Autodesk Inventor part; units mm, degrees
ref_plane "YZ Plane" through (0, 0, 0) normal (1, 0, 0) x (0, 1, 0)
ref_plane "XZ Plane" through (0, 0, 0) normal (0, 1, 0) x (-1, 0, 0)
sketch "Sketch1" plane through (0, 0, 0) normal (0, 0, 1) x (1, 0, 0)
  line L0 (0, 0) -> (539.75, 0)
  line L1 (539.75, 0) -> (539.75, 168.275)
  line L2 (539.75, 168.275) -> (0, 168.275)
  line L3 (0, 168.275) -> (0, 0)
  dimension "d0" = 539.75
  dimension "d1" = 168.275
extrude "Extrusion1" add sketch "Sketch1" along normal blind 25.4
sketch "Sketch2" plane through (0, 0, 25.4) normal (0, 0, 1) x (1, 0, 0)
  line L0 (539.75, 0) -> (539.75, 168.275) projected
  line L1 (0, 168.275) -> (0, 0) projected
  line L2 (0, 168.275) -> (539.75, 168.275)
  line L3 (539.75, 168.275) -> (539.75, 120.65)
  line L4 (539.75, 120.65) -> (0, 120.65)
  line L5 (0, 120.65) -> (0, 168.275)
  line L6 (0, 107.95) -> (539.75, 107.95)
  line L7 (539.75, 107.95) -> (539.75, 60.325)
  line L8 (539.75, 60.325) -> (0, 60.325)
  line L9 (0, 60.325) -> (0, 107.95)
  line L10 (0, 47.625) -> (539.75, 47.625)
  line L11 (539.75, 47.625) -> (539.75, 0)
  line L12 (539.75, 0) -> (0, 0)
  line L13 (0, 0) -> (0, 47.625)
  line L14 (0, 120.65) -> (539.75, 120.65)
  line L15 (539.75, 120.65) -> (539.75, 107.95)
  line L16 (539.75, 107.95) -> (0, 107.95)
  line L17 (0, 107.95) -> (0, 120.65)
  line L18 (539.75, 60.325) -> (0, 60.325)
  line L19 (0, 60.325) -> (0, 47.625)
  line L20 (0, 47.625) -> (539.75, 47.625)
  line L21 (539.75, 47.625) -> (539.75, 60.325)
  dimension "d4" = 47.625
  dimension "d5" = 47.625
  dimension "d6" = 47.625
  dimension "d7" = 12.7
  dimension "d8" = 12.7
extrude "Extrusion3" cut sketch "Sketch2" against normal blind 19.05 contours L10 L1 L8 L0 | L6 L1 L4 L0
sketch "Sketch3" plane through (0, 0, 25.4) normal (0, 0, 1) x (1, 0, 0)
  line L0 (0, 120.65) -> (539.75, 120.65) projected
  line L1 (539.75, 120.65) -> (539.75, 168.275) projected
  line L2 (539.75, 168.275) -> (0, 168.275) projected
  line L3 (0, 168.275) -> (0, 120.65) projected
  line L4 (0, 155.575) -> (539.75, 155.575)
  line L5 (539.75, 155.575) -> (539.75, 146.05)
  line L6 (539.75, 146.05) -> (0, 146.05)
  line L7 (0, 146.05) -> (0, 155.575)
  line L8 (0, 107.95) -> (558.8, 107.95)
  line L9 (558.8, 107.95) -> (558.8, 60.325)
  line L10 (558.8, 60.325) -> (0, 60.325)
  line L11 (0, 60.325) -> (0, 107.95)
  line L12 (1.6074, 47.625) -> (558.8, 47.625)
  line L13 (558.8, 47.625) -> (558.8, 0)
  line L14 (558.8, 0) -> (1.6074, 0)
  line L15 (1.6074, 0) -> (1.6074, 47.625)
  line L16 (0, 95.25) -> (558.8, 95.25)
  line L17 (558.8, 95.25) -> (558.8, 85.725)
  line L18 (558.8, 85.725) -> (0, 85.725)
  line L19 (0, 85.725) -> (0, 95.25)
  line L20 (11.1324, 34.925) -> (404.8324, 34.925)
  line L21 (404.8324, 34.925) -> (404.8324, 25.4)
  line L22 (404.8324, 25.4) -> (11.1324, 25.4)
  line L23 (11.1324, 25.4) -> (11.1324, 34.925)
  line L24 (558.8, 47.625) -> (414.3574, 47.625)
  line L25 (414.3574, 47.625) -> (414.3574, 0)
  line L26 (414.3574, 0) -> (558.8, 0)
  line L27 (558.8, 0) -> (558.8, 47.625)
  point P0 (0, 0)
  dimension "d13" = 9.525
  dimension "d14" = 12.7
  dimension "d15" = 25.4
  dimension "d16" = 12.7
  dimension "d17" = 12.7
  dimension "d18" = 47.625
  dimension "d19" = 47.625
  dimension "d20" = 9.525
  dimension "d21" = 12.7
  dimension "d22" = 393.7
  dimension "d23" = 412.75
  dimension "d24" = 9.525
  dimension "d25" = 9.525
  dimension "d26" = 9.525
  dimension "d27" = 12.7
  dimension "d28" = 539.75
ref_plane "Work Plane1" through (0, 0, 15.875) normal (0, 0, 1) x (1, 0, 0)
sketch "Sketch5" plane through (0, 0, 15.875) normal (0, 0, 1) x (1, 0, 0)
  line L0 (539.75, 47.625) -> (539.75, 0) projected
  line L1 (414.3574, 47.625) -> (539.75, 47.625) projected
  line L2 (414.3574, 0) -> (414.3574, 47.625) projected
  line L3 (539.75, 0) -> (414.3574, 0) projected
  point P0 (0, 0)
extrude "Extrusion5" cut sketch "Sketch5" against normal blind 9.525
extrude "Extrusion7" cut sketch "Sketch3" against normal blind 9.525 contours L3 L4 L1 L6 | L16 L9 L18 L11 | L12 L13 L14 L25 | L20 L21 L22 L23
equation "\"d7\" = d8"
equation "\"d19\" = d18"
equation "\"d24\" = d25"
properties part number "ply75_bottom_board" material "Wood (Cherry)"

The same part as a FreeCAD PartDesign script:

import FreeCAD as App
import Part
import Sketcher
from FreeCAD import Vector
Q = App.Units.Quantity

doc = App.newDocument("Part")
body = doc.addObject("PartDesign::Body", "Body")

# Sketch on XY plane
sketch1 = doc.addObject("Sketcher::SketchObject", "Sketch")
body.addObject(sketch1)
sketch1.AttachmentSupport = (doc.XY_Plane, [""])
sketch1.MapMode = "FlatFace"
sketch1.addGeometry([
    Part.LineSegment(Vector(0, 168, 0), Vector(0, 0, 0)),
    Part.LineSegment(Vector(0, 0, 0), Vector(540, 0, 0)),
    Part.LineSegment(Vector(540, 0, 0), Vector(540, 168, 0)),
    Part.LineSegment(Vector(540, 168, 0), Vector(0, 168, 0)),
], False)
sketch1.addConstraint([
    Sketcher.Constraint("Coincident", 0, 2, 1, 1),
    Sketcher.Constraint("Coincident", 1, 2, 2, 1),
    Sketcher.Constraint("Coincident", 2, 2, 3, 1),
    Sketcher.Constraint("Coincident", 3, 2, 0, 1),
    Sketcher.Constraint("Vertical", 0),
    Sketcher.Constraint("Horizontal", 1),
    Sketcher.Constraint("Vertical", 2),
    Sketcher.Constraint("Horizontal", 3),
    Sketcher.Constraint("Coincident", 0, 2, -1, 1),
    Sketcher.Constraint("DistanceX", 1, 1, 1, 2, Q("21.25 in")),
    Sketcher.Constraint("DistanceY", 0, 2, 0, 1, Q("6.625 in")),
])
pad1 = doc.addObject("PartDesign::Pad", "Pad")
body.addObject(pad1)
pad1.Profile = sketch1
pad1.Length = Q("1 in")

# Sketch on XY plane
sketch2 = doc.addObject("Sketcher::SketchObject", "Sketch001")
body.addObject(sketch2)
sketch2.AttachmentSupport = (doc.XY_Plane, [""])
sketch2.MapMode = "FlatFace"
sketch2.AttachmentOffset = App.Placement(Vector(0, 0, 1 * 25.4), App.Rotation())
sketch2.addGeometry([
    Part.LineSegment(Vector(0, 48, 0), Vector(540, 48, 0)),  # 0
    Part.LineSegment(Vector(540, 48, 0), Vector(540, 60, 0)),  # 1
    Part.LineSegment(Vector(540, 60, 0), Vector(0, 60, 0)),  # 2
    Part.LineSegment(Vector(0, 60, 0), Vector(0, 48, 0)),  # 3
    Part.LineSegment(Vector(0, 108, 0), Vector(540, 108, 0)),  # 4
    Part.LineSegment(Vector(540, 108, 0), Vector(540, 121, 0)),  # 5
    Part.LineSegment(Vector(540, 121, 0), Vector(0, 121, 0)),  # 6
    Part.LineSegment(Vector(0, 121, 0), Vector(0, 108, 0)),  # 7
], False)
sketch2.addConstraint([
    Sketcher.Constraint("Coincident", 0, 2, 1, 1),
    Sketcher.Constraint("Coincident", 1, 2, 2, 1),
    Sketcher.Constraint("Coincident", 2, 2, 3, 1),
    Sketcher.Constraint("Coincident", 3, 2, 0, 1),
    Sketcher.Constraint("Coincident", 4, 2, 5, 1),
    Sketcher.Constraint("Coincident", 5, 2, 6, 1),
    Sketcher.Constraint("Coincident", 6, 2, 7, 1),
    Sketcher.Constraint("Coincident", 7, 2, 4, 1),
    Sketcher.Constraint("Horizontal", 0),
    Sketcher.Constraint("Vertical", 1),
    Sketcher.Constraint("Horizontal", 2),
    Sketcher.Constraint("Vertical", 3),
    Sketcher.Constraint("Horizontal", 4),
    Sketcher.Constraint("Vertical", 5),
    Sketcher.Constraint("Horizontal", 6),
    Sketcher.Constraint("Vertical", 7),
    Sketcher.Constraint("PointOnObject", 2, 2, -2),
    Sketcher.Constraint("PointOnObject", 6, 2, -2),
    Sketcher.Constraint("Vertical", 1, 2, 4, 2),
    Sketcher.Constraint("Equal", 3, 5),
    Sketcher.Constraint("DistanceY", 1, 1, 1, 2, Q("0.5 in")),
    Sketcher.Constraint("DistanceY", -1, 1, 0, 2, Q("1.875 in")),
    Sketcher.Constraint("DistanceY", 1, 2, 4, 2, Q("1.875 in")),
    Sketcher.Constraint("DistanceX", 0, 1, 0, 2, Q("21.25 in")),
])
pocket1 = doc.addObject("PartDesign::Pocket", "Pocket")
body.addObject(pocket1)
pocket1.Profile = sketch2
pocket1.Length = Q("0.75 in")

# Sketch on XY plane
sketch3 = doc.addObject("Sketcher::SketchObject", "Sketch002")
body.addObject(sketch3)
sketch3.AttachmentSupport = (doc.XY_Plane, [""])
sketch3.MapMode = "FlatFace"
sketch3.AttachmentOffset = App.Placement(Vector(0, 0, 0.625 * 25.4), App.Rotation())
sketch3.addGeometry([
    Part.LineSegment(Vector(540, 0, 0), Vector(540, 48, 0)),
    Part.LineSegment(Vector(540, 48, 0), Vector(414, 48, 0)),
    Part.LineSegment(Vector(414, 48, 0), Vector(414, 0, 0)),
    Part.LineSegment(Vector(414, 0, 0), Vector(540, 0, 0)),
], False)
sketch3.addConstraint([
    Sketcher.Constraint("Coincident", 0, 2, 1, 1),
    Sketcher.Constraint("Coincident", 1, 2, 2, 1),
    Sketcher.Constraint("Coincident", 2, 2, 3, 1),
    Sketcher.Constraint("Coincident", 3, 2, 0, 1),
    Sketcher.Constraint("Vertical", 0),
    Sketcher.Constraint("Horizontal", 1),
    Sketcher.Constraint("Vertical", 2),
    Sketcher.Constraint("Horizontal", 3),
    Sketcher.Constraint("PointOnObject", 2, 2, -1),
    Sketcher.Constraint("DistanceY", 0, 1, 0, 2, Q("1.875 in")),
    Sketcher.Constraint("DistanceX", -1, 1, 0, 2, Q("21.25 in")),
    Sketcher.Constraint("DistanceX", 1, 2, 1, 1, 125.3926),
])
pocket2 = doc.addObject("PartDesign::Pocket", "Pocket001")
body.addObject(pocket2)
pocket2.Profile = sketch3
pocket2.Length = Q("0.375 in")

# Sketch on XY plane
sketch4 = doc.addObject("Sketcher::SketchObject", "Sketch003")
body.addObject(sketch4)
sketch4.AttachmentSupport = (doc.XY_Plane, [""])
sketch4.MapMode = "FlatFace"
sketch4.AttachmentOffset = App.Placement(Vector(0, 0, 1 * 25.4), App.Rotation())
sketch4.addGeometry([
    Part.LineSegment(Vector(0, 156, 0), Vector(0, 146, 0)),  # 0
    Part.LineSegment(Vector(0, 146, 0), Vector(540, 146, 0)),  # 1
    Part.LineSegment(Vector(540, 146, 0), Vector(540, 156, 0)),  # 2
    Part.LineSegment(Vector(540, 156, 0), Vector(0, 156, 0)),  # 3
    Part.LineSegment(Vector(559, 95, 0), Vector(0, 95, 0)),  # 4
    Part.LineSegment(Vector(0, 95, 0), Vector(0, 86, 0)),  # 5
    Part.LineSegment(Vector(0, 86, 0), Vector(559, 86, 0)),  # 6
    Part.LineSegment(Vector(559, 86, 0), Vector(559, 95, 0)),  # 7
    Part.LineSegment(Vector(559, 48, 0), Vector(414, 48, 0)),  # 8
    Part.LineSegment(Vector(414, 48, 0), Vector(414, 0, 0)),  # 9
    Part.LineSegment(Vector(414, 0, 0), Vector(559, 0, 0)),  # 10
    Part.LineSegment(Vector(559, 0, 0), Vector(559, 48, 0)),  # 11
    Part.LineSegment(Vector(405, 35, 0), Vector(11, 35, 0)),  # 12
    Part.LineSegment(Vector(11, 35, 0), Vector(11, 25, 0)),  # 13
    Part.LineSegment(Vector(11, 25, 0), Vector(405, 25, 0)),  # 14
    Part.LineSegment(Vector(405, 25, 0), Vector(405, 35, 0)),  # 15
], False)
sketch4.addConstraint([
    Sketcher.Constraint("Coincident", 0, 2, 1, 1),
    Sketcher.Constraint("Coincident", 1, 2, 2, 1),
    Sketcher.Constraint("Coincident", 2, 2, 3, 1),
    Sketcher.Constraint("Coincident", 3, 2, 0, 1),
    Sketcher.Constraint("Coincident", 4, 2, 5, 1),
    Sketcher.Constraint("Coincident", 5, 2, 6, 1),
    Sketcher.Constraint("Coincident", 6, 2, 7, 1),
    Sketcher.Constraint("Coincident", 7, 2, 4, 1),
    Sketcher.Constraint("Coincident", 8, 2, 9, 1),
    Sketcher.Constraint("Coincident", 9, 2, 10, 1),
    Sketcher.Constraint("Coincident", 10, 2, 11, 1),
    Sketcher.Constraint("Coincident", 11, 2, 8, 1),
    Sketcher.Constraint("Coincident", 12, 2, 13, 1),
    Sketcher.Constraint("Coincident", 13, 2, 14, 1),
    Sketcher.Constraint("Coincident", 14, 2, 15, 1),
    Sketcher.Constraint("Coincident", 15, 2, 12, 1),
    Sketcher.Constraint("Vertical", 0),
    Sketcher.Constraint("Horizontal", 1),
    Sketcher.Constraint("Vertical", 2),
    Sketcher.Constraint("Horizontal", 3),
    Sketcher.Constraint("Horizontal", 4),
    Sketcher.Constraint("Vertical", 5),
    Sketcher.Constraint("Horizontal", 6),
    Sketcher.Constraint("Vertical", 7),
    Sketcher.Constraint("Horizontal", 8),
    Sketcher.Constraint("Vertical", 9),
    Sketcher.Constraint("Horizontal", 10),
    Sketcher.Constraint("Vertical", 11),
    Sketcher.Constraint("Horizontal", 12),
    Sketcher.Constraint("Vertical", 13),
    Sketcher.Constraint("Horizontal", 14),
    Sketcher.Constraint("Vertical", 15),
    Sketcher.Constraint("PointOnObject", 0, 2, -2),
    Sketcher.Constraint("PointOnObject", 4, 2, -2),
    Sketcher.Constraint("PointOnObject", 9, 2, -1),
    Sketcher.Constraint("Vertical", 7, 2, 10, 2),
    Sketcher.Constraint("Equal", 2, 5),
    Sketcher.Constraint("Equal", 7, 13),
    Sketcher.Constraint("DistanceX", 12, 2, 12, 1, Q("15.5 in")),
    Sketcher.Constraint("DistanceY", -1, 1, 13, 2, Q("1 in")),
    Sketcher.Constraint("DistanceX", 1, 1, 1, 2, Q("21.25 in")),
    Sketcher.Constraint("DistanceY", 12, 2, 8, 2, Q("0.5 in")),
    Sketcher.Constraint("DistanceX", 4, 2, 4, 1, Q("22 in")),
    Sketcher.Constraint("DistanceY", 0, 2, 0, 1, Q("0.375 in")),
    Sketcher.Constraint("DistanceY", 4, 2, 0, 2, Q("2 in")),
    Sketcher.Constraint("DistanceY", 8, 2, 7, 2, Q("1.875 in")),
    Sketcher.Constraint("DistanceX", 14, 2, 8, 2, Q("0.375 in")),
    Sketcher.Constraint("DistanceX", 8, 2, 8, 1, 144.4426),
])
pocket3 = doc.addObject("PartDesign::Pocket", "Pocket002")
body.addObject(pocket3)
pocket3.Profile = sketch4
pocket3.Length = Q("0.375 in")

doc.recompute()
